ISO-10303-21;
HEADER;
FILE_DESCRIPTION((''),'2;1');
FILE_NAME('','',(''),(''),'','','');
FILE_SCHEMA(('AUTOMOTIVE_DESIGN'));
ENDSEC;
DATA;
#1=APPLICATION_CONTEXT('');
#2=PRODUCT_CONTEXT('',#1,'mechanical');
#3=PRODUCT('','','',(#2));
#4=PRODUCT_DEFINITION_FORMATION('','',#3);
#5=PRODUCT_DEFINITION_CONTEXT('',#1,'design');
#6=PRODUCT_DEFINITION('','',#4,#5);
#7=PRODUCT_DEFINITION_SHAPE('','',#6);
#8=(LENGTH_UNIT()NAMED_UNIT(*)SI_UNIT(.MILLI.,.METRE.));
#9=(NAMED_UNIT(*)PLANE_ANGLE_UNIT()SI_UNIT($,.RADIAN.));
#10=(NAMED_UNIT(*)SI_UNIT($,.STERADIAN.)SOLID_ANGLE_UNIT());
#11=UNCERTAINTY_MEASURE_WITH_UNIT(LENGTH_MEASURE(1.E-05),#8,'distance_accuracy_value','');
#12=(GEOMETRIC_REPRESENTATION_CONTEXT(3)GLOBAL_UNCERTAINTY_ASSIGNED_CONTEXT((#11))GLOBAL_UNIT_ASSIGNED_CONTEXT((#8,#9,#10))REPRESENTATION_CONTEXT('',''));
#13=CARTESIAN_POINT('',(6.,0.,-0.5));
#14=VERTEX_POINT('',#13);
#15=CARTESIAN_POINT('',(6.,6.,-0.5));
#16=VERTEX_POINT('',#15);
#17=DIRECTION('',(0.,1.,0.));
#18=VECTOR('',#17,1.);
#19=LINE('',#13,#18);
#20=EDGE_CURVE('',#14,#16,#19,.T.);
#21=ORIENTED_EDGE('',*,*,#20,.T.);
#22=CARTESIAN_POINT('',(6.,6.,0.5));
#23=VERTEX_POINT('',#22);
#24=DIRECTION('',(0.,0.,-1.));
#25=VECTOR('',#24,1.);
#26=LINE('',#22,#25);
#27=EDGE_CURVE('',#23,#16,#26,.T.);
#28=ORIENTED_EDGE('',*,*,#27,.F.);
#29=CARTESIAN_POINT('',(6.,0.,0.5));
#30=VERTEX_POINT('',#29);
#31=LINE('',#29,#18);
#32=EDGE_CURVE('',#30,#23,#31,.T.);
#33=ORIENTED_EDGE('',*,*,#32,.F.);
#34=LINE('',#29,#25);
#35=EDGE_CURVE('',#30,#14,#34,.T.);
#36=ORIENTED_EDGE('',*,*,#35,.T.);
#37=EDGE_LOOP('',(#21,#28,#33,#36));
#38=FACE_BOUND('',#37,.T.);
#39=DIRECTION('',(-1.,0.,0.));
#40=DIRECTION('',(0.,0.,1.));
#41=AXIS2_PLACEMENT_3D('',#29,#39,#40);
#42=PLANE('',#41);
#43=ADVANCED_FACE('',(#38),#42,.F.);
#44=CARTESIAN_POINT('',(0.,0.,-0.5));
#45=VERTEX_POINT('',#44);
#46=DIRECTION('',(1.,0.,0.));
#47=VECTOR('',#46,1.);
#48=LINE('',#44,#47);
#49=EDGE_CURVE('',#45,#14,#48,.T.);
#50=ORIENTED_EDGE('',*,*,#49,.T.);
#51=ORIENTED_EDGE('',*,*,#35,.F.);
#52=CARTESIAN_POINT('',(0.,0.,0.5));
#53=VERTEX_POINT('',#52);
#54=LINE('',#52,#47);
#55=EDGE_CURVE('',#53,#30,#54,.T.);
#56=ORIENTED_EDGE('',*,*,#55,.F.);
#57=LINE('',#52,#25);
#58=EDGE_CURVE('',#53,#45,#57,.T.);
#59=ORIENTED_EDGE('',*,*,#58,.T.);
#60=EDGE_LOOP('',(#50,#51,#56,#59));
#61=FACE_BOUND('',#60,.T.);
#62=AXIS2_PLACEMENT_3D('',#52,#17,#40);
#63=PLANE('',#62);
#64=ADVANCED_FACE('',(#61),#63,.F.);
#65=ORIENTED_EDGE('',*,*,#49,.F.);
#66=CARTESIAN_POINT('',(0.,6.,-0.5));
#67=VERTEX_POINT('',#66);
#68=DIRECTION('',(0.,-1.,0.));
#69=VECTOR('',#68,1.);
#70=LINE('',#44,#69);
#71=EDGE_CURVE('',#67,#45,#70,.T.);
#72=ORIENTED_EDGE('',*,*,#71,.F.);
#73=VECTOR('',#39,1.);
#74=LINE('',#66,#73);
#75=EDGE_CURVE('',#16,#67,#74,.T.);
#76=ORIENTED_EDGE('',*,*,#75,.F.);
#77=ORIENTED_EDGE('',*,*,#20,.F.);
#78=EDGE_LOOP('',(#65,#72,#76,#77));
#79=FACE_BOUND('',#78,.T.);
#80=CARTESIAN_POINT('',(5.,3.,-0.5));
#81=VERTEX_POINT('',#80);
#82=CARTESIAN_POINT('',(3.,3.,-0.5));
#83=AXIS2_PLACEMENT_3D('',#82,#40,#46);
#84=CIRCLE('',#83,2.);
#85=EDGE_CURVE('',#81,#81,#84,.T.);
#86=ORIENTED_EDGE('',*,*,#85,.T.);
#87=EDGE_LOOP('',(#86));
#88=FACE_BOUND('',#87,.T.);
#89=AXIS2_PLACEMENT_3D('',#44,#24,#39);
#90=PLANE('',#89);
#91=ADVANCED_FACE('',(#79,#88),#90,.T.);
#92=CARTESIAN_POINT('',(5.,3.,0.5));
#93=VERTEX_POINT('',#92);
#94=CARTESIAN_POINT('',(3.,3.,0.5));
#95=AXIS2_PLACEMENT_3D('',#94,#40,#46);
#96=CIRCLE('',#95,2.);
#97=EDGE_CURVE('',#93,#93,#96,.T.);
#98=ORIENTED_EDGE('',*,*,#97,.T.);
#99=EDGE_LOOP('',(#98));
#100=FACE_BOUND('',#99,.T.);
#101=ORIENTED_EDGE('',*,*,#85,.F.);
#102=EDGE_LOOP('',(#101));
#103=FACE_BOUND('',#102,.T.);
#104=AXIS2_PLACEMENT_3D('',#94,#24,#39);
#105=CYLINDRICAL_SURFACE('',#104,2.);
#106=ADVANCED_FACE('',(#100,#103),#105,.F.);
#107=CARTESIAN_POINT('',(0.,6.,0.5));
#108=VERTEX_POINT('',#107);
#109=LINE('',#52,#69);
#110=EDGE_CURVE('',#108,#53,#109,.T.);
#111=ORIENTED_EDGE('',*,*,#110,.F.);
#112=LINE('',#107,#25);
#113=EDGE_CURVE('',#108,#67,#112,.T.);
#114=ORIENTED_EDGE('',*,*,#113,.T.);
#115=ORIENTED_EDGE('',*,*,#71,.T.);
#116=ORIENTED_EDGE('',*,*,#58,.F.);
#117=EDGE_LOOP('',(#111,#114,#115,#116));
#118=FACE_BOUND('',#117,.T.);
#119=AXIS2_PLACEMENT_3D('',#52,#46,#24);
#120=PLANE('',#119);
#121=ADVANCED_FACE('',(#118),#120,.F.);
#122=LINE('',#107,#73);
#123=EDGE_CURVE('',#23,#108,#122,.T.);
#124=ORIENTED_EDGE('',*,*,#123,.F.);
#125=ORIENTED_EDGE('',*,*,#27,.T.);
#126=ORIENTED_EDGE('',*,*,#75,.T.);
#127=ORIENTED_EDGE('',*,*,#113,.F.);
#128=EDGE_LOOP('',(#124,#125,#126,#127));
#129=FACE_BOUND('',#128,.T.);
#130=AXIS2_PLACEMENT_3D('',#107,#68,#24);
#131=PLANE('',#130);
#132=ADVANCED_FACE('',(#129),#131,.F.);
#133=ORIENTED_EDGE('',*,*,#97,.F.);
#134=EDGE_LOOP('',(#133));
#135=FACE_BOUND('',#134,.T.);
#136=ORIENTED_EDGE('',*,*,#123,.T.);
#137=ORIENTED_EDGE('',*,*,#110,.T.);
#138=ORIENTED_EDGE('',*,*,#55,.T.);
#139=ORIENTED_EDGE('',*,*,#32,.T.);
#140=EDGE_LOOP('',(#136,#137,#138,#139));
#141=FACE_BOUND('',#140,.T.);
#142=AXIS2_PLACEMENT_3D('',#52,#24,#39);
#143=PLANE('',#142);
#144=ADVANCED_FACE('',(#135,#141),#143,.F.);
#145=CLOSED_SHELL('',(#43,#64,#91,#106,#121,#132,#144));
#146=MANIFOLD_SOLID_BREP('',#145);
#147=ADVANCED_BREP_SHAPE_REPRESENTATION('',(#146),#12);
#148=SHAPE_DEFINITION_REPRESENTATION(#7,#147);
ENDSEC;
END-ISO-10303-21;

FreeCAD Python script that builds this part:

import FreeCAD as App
import Part
import Sketcher
from FreeCAD import Vector
Q = App.Units.Quantity


def add_polygon(sketch, points):
    """Adds a closed chain of lines whose ends are joined by coincident constraints."""
    first, n = sketch.GeometryCount, len(points)
    for a, b in zip(points, points[1:] + points[:1]):
        sketch.addGeometry(Part.LineSegment(App.Vector(*a, 0), App.Vector(*b, 0)), False)
    for i in range(n):
        sketch.addConstraint(Sketcher.Constraint("Coincident", first + i, 2, first + (i + 1) % n, 1))

doc = App.newDocument("Part")
body = doc.addObject("PartDesign::Body", "Body")

sketch1 = body.newObject("Sketcher::SketchObject", "Sketch")
sketch1.AttachmentSupport = (doc.getObject("XY_Plane"), [""])
sketch1.MapMode = "FlatFace"
add_polygon(sketch1, [(0, 6), (0, 0), (6, 0), (6, 6)])
sketch1.addGeometry(Part.Circle(Vector(3, 3, 0), Vector(0, 0, 1), 2), False)
sketch1.addConstraint([
    Sketcher.Constraint("Vertical", 0),
    Sketcher.Constraint("Horizontal", 1),
    Sketcher.Constraint("Vertical", 2),
    Sketcher.Constraint("Horizontal", 3),
    Sketcher.Constraint("Coincident", 0, 2, -1, 1),
    Sketcher.Constraint("Equal", 3, 0),
    Sketcher.Constraint("Diameter", 4, Q("4 mm")),
    Sketcher.Constraint("DistanceX", 1, 1, 1, 2, Q("6 mm")),
    Sketcher.Constraint("DistanceX", -1, 1, 4, 3, Q("3 mm")),
    Sketcher.Constraint("DistanceY", -1, 1, 4, 3, Q("3 mm")),
])
pad1 = body.newObject("PartDesign::Pad", "Pad")
pad1.Profile = sketch1
pad1.Length = 1
pad1.Midplane = True

doc.recompute()
